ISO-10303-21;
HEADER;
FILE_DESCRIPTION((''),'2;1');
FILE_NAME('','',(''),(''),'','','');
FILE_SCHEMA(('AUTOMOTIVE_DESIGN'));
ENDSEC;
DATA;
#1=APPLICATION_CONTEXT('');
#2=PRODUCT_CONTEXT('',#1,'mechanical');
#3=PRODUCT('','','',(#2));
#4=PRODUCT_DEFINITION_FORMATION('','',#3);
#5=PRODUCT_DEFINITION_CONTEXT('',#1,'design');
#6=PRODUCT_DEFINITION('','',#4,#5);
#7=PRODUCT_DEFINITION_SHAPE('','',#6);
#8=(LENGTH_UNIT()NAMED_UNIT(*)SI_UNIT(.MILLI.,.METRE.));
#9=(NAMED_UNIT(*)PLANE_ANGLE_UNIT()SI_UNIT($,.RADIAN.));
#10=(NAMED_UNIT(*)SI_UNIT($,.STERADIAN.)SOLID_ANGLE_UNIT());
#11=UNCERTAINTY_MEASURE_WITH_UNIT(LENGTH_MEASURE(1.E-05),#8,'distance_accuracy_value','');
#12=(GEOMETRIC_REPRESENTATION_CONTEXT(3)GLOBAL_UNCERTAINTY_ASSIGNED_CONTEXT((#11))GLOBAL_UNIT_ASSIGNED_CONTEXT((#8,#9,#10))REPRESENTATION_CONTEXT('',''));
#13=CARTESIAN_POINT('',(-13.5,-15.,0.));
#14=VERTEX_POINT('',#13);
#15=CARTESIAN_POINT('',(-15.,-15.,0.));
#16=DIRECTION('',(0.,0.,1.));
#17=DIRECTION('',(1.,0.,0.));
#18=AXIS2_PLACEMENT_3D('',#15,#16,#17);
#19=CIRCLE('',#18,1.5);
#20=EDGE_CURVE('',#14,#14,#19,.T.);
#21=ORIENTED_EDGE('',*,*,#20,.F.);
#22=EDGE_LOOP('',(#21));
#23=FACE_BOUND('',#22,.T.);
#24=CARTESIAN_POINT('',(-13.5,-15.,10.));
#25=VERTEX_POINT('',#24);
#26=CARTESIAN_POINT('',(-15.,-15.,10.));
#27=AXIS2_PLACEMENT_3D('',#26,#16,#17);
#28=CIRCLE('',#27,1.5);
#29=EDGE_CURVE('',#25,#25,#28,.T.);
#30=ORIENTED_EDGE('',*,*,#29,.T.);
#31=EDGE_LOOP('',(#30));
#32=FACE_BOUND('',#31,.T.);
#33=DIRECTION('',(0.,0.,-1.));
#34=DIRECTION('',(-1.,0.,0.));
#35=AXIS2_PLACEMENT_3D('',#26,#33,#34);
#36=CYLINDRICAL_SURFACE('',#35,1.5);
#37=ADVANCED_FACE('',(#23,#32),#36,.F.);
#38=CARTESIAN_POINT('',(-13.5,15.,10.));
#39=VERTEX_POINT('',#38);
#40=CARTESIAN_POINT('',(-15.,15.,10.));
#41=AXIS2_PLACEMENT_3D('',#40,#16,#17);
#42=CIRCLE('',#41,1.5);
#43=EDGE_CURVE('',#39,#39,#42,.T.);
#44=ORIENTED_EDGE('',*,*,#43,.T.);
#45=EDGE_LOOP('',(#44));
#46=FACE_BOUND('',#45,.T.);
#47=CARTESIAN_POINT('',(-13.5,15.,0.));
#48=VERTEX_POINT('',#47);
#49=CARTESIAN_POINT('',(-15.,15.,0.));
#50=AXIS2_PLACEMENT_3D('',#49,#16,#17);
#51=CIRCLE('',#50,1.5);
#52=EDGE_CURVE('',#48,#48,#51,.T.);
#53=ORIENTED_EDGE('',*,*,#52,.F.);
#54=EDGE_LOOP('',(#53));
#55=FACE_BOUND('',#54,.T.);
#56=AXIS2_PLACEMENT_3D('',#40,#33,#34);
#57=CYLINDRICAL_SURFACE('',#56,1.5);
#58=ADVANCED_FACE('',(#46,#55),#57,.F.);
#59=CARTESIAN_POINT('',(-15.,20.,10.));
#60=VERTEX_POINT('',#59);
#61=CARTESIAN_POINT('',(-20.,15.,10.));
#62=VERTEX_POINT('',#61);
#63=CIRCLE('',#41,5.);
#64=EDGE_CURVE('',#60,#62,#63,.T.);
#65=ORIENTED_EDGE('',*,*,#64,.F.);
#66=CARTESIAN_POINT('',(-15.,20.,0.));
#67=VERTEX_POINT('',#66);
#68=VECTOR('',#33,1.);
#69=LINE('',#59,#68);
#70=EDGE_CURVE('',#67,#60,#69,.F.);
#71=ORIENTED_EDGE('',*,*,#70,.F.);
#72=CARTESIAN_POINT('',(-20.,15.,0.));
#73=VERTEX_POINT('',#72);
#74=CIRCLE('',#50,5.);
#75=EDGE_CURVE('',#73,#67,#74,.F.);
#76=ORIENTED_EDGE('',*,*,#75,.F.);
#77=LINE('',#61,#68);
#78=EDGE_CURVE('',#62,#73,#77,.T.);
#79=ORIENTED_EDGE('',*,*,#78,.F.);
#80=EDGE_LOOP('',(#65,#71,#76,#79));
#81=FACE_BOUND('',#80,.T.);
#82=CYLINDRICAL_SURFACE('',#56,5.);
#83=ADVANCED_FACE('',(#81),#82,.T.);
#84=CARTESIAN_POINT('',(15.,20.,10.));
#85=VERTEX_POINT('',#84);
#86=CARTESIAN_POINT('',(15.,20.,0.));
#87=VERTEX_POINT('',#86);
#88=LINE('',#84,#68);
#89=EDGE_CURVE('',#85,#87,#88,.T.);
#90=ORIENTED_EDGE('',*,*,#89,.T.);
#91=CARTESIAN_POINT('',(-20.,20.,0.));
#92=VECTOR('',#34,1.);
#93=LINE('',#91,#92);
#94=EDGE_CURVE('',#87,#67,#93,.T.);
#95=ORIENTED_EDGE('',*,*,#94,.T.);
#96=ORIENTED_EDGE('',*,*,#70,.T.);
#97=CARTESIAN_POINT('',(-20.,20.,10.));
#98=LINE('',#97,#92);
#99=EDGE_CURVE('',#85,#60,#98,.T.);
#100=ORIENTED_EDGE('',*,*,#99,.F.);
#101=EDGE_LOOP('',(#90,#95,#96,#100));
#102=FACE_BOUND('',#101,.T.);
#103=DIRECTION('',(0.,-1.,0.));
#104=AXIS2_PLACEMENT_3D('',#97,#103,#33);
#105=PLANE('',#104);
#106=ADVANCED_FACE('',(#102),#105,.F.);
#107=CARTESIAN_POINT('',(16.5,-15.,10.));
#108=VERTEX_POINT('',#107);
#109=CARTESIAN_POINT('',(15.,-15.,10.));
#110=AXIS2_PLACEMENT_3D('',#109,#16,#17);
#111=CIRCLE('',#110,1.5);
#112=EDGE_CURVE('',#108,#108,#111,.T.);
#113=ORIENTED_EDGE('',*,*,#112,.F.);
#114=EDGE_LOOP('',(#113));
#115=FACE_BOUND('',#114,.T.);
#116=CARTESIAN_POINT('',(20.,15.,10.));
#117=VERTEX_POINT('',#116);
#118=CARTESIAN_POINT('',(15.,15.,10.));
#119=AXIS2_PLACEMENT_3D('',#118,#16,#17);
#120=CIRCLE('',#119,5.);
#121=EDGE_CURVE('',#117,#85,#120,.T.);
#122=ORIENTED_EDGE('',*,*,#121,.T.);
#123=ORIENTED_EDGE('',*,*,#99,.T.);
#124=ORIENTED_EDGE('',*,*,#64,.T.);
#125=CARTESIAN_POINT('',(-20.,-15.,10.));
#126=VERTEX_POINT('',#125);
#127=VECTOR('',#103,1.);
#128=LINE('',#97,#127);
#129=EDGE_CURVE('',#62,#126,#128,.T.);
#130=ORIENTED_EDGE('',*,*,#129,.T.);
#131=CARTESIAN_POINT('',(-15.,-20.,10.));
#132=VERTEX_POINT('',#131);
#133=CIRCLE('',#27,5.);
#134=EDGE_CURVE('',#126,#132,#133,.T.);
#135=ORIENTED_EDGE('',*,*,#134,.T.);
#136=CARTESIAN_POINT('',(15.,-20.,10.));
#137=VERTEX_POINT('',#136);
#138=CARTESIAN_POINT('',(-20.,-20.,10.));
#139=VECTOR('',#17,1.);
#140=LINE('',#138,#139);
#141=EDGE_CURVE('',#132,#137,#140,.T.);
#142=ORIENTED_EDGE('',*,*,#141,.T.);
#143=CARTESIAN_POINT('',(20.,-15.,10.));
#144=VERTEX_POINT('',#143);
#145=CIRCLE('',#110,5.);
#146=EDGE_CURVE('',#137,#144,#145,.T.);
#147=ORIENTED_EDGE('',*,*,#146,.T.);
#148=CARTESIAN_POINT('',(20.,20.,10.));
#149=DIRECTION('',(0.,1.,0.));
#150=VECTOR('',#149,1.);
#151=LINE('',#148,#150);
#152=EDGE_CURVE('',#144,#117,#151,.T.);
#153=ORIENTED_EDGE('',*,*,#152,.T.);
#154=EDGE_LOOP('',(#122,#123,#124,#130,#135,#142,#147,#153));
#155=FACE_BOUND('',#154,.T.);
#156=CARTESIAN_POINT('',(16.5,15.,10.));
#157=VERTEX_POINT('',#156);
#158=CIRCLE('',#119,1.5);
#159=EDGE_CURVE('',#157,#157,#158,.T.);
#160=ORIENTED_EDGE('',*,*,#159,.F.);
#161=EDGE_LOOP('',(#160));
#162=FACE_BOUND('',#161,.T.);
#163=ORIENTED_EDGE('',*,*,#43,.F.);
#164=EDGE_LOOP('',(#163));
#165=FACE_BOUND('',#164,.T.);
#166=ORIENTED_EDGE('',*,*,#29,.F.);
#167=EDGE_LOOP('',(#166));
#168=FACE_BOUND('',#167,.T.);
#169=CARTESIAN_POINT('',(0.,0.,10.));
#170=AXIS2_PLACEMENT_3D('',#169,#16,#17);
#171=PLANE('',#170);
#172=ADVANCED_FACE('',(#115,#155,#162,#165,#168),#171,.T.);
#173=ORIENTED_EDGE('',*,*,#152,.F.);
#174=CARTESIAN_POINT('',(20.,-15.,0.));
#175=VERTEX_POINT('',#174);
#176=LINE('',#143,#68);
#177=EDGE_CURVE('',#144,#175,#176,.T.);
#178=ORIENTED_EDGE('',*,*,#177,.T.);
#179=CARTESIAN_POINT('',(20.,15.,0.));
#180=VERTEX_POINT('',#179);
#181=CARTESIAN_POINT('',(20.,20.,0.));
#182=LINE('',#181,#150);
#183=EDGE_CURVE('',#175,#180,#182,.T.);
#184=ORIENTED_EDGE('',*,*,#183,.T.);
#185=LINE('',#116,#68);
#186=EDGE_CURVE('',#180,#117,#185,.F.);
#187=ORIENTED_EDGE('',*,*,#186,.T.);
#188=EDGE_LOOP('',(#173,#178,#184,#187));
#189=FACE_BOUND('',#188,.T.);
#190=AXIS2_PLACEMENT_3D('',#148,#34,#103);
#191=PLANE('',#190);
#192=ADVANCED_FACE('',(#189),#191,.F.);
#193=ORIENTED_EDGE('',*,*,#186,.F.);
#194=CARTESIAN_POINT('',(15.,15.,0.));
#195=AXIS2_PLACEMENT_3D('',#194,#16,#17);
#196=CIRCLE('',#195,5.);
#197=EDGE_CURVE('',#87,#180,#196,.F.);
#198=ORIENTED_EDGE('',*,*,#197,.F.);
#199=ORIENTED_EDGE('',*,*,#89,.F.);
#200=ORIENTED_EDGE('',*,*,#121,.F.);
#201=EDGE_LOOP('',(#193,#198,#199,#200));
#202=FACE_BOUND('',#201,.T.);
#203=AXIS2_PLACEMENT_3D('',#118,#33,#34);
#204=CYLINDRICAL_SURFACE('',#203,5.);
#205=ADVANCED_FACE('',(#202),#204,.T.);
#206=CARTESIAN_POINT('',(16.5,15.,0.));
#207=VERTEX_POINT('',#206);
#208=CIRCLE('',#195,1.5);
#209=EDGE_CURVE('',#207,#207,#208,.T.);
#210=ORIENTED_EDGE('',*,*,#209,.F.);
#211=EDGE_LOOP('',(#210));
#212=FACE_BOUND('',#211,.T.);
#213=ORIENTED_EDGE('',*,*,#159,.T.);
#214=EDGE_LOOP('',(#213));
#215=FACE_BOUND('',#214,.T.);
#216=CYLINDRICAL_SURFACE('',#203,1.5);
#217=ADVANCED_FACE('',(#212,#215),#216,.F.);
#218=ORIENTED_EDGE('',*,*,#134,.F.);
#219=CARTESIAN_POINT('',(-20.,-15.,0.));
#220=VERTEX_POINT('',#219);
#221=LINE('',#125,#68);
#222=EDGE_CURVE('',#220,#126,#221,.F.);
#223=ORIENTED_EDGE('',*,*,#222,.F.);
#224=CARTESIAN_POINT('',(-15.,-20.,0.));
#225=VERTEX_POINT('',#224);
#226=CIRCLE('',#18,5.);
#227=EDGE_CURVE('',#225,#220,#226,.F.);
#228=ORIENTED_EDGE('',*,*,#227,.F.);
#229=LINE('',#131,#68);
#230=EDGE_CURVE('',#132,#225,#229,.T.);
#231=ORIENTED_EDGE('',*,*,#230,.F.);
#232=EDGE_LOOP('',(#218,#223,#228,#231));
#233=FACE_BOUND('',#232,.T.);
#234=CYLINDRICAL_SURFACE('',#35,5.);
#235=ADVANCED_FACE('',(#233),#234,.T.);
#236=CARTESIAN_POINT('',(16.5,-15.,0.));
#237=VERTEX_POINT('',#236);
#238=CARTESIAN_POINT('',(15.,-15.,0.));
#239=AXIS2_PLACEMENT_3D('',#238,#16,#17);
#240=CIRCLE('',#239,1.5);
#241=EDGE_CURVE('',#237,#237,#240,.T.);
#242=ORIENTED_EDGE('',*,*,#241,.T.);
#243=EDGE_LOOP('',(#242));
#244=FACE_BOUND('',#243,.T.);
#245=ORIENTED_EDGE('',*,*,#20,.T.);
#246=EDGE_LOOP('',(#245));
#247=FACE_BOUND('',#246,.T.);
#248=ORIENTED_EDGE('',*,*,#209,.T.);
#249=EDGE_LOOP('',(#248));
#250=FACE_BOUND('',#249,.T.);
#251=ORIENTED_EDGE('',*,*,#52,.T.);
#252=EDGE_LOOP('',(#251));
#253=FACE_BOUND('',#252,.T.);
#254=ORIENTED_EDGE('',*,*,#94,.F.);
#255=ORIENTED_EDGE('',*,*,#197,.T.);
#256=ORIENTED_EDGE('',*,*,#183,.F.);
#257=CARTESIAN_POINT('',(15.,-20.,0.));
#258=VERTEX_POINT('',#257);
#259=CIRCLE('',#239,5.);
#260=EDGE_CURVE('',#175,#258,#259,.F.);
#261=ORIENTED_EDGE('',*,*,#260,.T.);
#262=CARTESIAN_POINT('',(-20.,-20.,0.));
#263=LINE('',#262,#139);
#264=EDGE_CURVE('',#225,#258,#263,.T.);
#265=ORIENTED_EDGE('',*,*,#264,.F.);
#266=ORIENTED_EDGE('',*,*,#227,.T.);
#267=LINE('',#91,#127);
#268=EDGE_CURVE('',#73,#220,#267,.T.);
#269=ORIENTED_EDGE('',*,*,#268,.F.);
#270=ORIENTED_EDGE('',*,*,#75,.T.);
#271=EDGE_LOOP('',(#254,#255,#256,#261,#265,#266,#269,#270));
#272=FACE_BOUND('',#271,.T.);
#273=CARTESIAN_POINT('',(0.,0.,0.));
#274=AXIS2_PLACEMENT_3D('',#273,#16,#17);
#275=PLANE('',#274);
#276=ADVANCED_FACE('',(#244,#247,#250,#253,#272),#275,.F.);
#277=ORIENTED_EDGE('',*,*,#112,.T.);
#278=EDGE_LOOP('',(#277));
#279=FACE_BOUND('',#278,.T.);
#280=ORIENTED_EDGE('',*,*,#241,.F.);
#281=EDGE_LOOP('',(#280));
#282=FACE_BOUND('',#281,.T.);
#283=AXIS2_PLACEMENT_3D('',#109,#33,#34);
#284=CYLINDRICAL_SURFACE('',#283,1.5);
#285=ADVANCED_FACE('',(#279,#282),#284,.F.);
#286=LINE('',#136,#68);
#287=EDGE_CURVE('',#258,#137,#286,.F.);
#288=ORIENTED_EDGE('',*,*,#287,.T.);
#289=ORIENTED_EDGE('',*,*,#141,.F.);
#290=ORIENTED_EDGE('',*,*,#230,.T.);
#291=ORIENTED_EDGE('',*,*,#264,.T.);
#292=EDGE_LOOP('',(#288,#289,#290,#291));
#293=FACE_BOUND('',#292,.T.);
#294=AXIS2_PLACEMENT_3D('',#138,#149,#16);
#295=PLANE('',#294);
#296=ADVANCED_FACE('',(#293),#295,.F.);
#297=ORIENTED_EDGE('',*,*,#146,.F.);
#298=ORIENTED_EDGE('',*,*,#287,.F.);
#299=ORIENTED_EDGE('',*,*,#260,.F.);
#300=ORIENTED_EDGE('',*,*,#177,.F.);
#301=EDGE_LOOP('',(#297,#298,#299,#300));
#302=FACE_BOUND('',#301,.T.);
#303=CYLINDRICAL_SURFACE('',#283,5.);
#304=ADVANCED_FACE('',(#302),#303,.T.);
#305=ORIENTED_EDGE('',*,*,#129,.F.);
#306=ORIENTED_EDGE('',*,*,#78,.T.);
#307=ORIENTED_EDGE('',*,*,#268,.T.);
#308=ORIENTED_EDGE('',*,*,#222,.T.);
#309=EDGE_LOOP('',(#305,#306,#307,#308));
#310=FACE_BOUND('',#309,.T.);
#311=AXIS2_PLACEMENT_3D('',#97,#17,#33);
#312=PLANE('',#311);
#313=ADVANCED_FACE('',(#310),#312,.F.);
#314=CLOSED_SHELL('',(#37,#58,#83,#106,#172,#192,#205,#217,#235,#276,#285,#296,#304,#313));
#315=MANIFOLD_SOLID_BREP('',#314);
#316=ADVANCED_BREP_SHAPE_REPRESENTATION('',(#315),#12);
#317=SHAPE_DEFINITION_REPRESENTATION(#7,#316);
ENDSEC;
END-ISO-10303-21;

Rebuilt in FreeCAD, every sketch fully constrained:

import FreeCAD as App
import Part
import Sketcher
from FreeCAD import Vector


def edges_at(feature, points):
    """Names of the edges that pass closest to the given points."""
    edges = feature.Shape.Edges
    near = lambda p: min(range(len(edges)), key=lambda i: edges[i].distToShape(Part.Vertex(*p))[0])
    return sorted({f"Edge{near(p) + 1}" for p in points})


def add_polygon(sketch, points):
    """Adds a closed chain of lines whose ends are joined by coincident constraints."""
    first, n = sketch.GeometryCount, len(points)
    for a, b in zip(points, points[1:] + points[:1]):
        sketch.addGeometry(Part.LineSegment(App.Vector(*a, 0), App.Vector(*b, 0)), False)
    for i in range(n):
        sketch.addConstraint(Sketcher.Constraint("Coincident", first + i, 2, first + (i + 1) % n, 1))

doc = App.newDocument("Part")
params = doc.addObject("Spreadsheet::Sheet", "Params")
for row, (alias, value) in enumerate([
    ("sketch1_diameter", "3 mm"),
    ("sketch1_width", "40 mm"),
    ("pad1_length", "10 mm"),
    ("fillet_radius", "5 mm"),
], start=1):
    params.set(f"A{row}", alias)
    params.set(f"B{row}", "=" + value)
    params.setAlias(f"B{row}", alias)

body = doc.addObject("PartDesign::Body", "Body")

# Sketch on XY plane
sketch1 = doc.addObject("Sketcher::SketchObject", "Sketch")
body.addObject(sketch1)
sketch1.AttachmentSupport = (doc.XY_Plane, [""])
sketch1.MapMode = "FlatFace"
add_polygon(sketch1, [(-20, 20), (-20, -20), (20, -20), (20, 20)])  # lines 0-3
sketch1.addGeometry(Part.Circle(Vector(-15, -15, 0), Vector(0, 0, 1), 1.5), False)  # 4
sketch1.addGeometry(Part.Circle(Vector(15, -15, 0), Vector(0, 0, 1), 1.5), False)  # 5
sketch1.addGeometry(Part.Circle(Vector(-15, 15, 0), Vector(0, 0, 1), 1.5), False)  # 6
sketch1.addGeometry(Part.Circle(Vector(15, 15, 0), Vector(0, 0, 1), 1.5), False)  # 7
sketch1.addConstraint([
    Sketcher.Constraint("Vertical", 0),
    Sketcher.Constraint("Horizontal", 1),
    Sketcher.Constraint("Vertical", 2),
    Sketcher.Constraint("Horizontal", 3),
    Sketcher.Constraint("Equal", 4, 5),
    Sketcher.Constraint("Equal", 5, 6),
    Sketcher.Constraint("Equal", 6, 7),
    Sketcher.Constraint("Symmetric", 5, 3, 6, 3, -1, 1),
    Sketcher.Constraint("Symmetric", 4, 3, 7, 3, -1, 1),
    Sketcher.Constraint("Symmetric", 0, 2, 2, 2, -1, 1),
    Sketcher.Constraint("Symmetric", 4, 3, 5, 3, -2),
    Sketcher.Constraint("Equal", 3, 0),
    Sketcher.Constraint("Diameter", 4, 3.0),
    Sketcher.Constraint("DistanceX", 1, 1, 1, 2, 40.0),
    Sketcher.Constraint("DistanceX", 4, 3, -1, 1, 15.0),
    Sketcher.Constraint("DistanceY", 4, 3, -1, 1, 15.0),
])
sketch1.setExpression("Constraints[16]", "Params.sketch1_diameter")
sketch1.setExpression("Constraints[17]", "Params.sketch1_width")
pad1 = doc.addObject("PartDesign::Pad", "Pad")
body.addObject(pad1)
pad1.Profile = sketch1
pad1.setExpression("Length", "Params.pad1_length")
doc.recompute()

fillet = doc.addObject("PartDesign::Fillet", "Fillet")
body.addObject(fillet)
fillet.Base = (pad1, edges_at(pad1, [
    (20, -20, 5),
    (-20, -20, 5),
    (-20, 20, 5),
    (20, 20, 5),
]))
fillet.setExpression("Radius", "Params.fillet_radius")

doc.recompute()
